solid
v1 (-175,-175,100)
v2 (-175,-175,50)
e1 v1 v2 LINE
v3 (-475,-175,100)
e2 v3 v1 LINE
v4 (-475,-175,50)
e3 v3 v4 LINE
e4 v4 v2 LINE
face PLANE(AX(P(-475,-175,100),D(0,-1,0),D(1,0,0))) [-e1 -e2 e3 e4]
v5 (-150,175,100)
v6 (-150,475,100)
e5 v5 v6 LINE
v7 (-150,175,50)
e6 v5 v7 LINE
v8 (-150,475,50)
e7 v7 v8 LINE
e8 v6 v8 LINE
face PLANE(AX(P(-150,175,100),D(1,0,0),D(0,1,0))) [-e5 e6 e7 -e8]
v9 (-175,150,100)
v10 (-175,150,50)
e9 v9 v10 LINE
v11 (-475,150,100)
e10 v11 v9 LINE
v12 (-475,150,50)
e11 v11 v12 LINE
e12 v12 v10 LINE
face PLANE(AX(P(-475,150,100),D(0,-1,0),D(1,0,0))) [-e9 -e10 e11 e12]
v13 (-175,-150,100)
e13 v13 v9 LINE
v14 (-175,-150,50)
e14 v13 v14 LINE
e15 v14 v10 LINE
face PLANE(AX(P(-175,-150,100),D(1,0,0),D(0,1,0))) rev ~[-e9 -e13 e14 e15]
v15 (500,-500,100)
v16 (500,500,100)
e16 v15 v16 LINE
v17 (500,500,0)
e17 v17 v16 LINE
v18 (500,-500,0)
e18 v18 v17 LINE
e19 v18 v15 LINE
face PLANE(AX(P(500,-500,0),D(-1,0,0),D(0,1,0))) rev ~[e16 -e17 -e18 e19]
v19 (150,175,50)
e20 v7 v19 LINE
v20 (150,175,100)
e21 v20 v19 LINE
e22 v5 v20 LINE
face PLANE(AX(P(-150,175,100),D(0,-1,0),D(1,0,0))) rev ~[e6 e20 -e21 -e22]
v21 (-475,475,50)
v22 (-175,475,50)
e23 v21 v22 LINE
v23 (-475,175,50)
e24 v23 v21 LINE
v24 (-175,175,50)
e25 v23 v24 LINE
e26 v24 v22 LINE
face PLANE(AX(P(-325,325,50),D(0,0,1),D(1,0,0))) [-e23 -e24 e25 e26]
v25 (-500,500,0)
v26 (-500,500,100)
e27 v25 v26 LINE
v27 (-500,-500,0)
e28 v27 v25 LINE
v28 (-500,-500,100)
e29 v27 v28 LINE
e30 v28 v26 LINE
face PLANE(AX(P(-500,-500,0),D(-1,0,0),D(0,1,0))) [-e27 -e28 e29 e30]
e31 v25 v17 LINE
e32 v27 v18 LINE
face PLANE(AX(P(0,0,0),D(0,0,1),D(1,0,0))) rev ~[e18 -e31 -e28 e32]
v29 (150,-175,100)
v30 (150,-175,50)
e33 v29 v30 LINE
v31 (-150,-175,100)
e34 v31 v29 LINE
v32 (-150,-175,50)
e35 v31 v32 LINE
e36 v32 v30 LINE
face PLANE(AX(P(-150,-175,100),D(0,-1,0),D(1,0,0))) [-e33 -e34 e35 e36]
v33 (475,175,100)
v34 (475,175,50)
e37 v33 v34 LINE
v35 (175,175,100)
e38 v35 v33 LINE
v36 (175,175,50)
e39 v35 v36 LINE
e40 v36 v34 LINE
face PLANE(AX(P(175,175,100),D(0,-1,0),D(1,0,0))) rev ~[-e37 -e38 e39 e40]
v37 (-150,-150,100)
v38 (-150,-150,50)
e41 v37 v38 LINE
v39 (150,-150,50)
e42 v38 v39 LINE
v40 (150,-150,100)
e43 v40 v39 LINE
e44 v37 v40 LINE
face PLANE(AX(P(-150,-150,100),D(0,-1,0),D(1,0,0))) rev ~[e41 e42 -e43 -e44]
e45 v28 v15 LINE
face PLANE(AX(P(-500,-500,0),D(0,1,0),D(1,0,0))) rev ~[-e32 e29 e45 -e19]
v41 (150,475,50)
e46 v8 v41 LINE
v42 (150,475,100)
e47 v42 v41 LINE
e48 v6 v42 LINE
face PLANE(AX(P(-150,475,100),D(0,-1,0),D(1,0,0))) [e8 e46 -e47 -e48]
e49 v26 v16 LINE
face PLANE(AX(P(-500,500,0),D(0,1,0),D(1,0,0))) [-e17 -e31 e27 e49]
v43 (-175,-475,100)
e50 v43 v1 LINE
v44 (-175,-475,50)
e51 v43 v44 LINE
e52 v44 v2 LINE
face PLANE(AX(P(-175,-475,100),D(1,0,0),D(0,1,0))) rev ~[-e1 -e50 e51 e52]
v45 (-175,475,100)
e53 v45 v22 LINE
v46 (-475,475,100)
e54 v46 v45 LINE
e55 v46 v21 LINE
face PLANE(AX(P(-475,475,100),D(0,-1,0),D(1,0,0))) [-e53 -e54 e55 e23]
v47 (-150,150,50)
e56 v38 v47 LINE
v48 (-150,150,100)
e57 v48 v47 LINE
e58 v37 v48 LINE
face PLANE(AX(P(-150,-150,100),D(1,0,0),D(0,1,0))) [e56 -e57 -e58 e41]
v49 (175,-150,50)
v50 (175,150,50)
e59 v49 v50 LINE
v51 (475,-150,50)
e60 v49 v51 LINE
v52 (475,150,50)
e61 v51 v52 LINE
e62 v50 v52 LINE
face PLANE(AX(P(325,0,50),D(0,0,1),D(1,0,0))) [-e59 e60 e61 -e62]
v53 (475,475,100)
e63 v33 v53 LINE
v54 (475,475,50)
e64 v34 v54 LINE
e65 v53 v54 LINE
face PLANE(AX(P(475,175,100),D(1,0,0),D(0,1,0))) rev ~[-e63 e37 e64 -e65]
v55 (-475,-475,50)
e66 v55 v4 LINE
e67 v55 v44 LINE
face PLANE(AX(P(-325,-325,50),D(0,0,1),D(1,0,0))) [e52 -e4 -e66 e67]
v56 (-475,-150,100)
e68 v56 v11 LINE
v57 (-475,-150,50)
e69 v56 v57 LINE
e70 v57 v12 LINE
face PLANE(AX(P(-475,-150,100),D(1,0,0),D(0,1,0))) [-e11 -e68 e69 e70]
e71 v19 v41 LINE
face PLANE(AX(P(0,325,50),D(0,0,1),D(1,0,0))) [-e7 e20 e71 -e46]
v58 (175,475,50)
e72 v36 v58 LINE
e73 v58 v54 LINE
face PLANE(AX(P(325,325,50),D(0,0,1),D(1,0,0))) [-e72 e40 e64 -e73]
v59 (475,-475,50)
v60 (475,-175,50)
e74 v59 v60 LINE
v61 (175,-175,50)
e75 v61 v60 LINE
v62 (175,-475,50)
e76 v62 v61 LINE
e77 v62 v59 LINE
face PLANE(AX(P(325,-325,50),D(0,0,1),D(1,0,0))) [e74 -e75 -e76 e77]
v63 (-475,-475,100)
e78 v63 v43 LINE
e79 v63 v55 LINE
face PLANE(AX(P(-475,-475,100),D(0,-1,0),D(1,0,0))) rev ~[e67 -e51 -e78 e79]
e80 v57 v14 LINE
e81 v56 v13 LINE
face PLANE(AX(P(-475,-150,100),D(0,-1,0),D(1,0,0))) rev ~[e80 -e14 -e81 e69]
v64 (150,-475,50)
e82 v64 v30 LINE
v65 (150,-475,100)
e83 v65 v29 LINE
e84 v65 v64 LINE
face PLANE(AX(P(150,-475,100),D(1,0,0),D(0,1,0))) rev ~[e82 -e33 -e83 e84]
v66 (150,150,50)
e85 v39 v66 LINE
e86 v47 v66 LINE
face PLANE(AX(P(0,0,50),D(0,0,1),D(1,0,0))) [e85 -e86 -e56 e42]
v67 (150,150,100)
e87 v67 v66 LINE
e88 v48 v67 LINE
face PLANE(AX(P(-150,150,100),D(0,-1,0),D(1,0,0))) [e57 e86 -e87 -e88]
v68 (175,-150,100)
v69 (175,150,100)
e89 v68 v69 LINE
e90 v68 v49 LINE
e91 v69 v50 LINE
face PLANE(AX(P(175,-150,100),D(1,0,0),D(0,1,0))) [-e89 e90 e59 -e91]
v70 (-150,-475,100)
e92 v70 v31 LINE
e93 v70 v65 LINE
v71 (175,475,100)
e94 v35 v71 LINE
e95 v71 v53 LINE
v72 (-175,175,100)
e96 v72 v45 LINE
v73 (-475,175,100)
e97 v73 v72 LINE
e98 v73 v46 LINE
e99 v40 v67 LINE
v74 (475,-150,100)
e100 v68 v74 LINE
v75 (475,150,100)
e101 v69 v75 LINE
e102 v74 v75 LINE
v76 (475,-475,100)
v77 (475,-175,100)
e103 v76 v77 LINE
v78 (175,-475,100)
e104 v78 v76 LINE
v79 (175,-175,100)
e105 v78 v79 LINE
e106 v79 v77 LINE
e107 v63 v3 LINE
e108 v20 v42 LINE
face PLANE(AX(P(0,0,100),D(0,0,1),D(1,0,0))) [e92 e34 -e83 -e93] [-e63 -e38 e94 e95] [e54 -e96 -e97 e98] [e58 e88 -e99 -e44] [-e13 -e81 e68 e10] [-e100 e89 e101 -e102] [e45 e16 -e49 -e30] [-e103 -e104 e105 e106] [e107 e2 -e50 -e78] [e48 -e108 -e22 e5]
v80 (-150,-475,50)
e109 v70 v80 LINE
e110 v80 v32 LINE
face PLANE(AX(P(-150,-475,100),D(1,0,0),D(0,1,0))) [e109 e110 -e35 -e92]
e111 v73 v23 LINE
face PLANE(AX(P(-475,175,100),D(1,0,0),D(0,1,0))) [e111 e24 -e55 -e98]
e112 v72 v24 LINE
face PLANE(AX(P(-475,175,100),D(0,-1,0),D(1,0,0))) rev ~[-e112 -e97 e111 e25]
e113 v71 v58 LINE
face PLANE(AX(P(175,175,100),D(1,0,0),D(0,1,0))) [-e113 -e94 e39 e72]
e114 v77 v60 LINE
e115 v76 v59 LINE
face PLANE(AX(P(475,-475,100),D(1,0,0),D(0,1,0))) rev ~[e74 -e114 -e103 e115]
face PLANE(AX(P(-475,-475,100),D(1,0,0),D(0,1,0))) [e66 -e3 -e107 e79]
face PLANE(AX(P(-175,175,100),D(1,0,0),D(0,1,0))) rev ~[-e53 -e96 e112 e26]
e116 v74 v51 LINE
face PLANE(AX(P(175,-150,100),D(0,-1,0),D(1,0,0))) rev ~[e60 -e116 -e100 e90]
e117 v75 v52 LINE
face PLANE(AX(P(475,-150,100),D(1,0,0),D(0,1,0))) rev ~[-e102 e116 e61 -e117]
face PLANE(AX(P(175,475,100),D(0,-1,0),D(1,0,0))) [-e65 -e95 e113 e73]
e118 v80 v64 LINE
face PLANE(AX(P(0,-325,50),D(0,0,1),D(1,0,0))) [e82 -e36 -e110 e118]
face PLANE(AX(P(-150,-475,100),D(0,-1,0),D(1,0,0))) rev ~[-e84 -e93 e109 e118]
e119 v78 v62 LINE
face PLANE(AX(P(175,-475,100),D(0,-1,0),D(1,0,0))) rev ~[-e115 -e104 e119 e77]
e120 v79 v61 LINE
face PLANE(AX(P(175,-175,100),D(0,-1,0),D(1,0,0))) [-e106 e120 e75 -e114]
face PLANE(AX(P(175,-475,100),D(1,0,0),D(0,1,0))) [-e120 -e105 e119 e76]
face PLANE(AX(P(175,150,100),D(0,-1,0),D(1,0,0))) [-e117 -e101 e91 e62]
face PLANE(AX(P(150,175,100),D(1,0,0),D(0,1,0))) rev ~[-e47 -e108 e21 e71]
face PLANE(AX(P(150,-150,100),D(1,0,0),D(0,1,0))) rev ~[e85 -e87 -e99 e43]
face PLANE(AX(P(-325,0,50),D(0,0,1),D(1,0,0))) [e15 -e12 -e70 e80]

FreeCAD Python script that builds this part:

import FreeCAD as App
import Part
import Sketcher

V = App.Vector
Q = App.Units.Quantity

doc = App.newDocument("Part")
body = doc.addObject("PartDesign::Body", "Body")

# Sketch on XY plane
sketch1 = body.newObject("Sketcher::SketchObject", "Sketch")
sketch1.AttachmentSupport = (doc.getObject("XY_Plane"), [""])
sketch1.MapMode = "FlatFace"
sketch1.addGeometry(Part.LineSegment(V(-500, 500, 0), V(-500, -500, 0)), False)
sketch1.addGeometry(Part.LineSegment(V(-500, -500, 0), V(500, -500, 0)), False)
sketch1.addGeometry(Part.LineSegment(V(500, -500, 0), V(500, 500, 0)), False)
sketch1.addGeometry(Part.LineSegment(V(500, 500, 0), V(-500, 500, 0)), False)
sketch1.addConstraint(Sketcher.Constraint("Coincident", 0, 2, 1, 1))
sketch1.addConstraint(Sketcher.Constraint("Coincident", 1, 2, 2, 1))
sketch1.addConstraint(Sketcher.Constraint("Coincident", 2, 2, 3, 1))
sketch1.addConstraint(Sketcher.Constraint("Coincident", 3, 2, 0, 1))
sketch1.addConstraint(Sketcher.Constraint("Vertical", 0))
sketch1.addConstraint(Sketcher.Constraint("Horizontal", 1))
sketch1.addConstraint(Sketcher.Constraint("Vertical", 2))
sketch1.addConstraint(Sketcher.Constraint("Horizontal", 3))
sketch1.addConstraint(Sketcher.Constraint("Symmetric", 0, 2, 2, 2, -1, 1))
sketch1.addConstraint(Sketcher.Constraint("Equal", 3, 0))
sketch1.addConstraint(Sketcher.Constraint("DistanceX", 1, 1, 1, 2, Q("1000 mm")))
pad1 = body.newObject("PartDesign::Pad", "Pad")
pad1.Profile = sketch1
pad1.Length = 100

# Sketch on XY plane
sketch2 = body.newObject("Sketcher::SketchObject", "Sketch001")
sketch2.AttachmentSupport = (doc.getObject("XY_Plane"), [""])
sketch2.MapMode = "FlatFace"
sketch2.AttachmentOffset = App.Placement(V(0, 0, 100), App.Rotation())
sketch2.addGeometry(Part.LineSegment(V(-475, 475, 0), V(-475, 175, 0)), False)
sketch2.addGeometry(Part.LineSegment(V(-475, 175, 0), V(-175, 175, 0)), False)
sketch2.addGeometry(Part.LineSegment(V(-175, 175, 0), V(-175, 475, 0)), False)
sketch2.addGeometry(Part.LineSegment(V(-175, 475, 0), V(-475, 475, 0)), False)
sketch2.addGeometry(Part.LineSegment(V(-150, 475, 0), V(-150, 175, 0)), False)
sketch2.addGeometry(Part.LineSegment(V(-150, 175, 0), V(150, 175, 0)), False)
sketch2.addGeometry(Part.LineSegment(V(150, 175, 0), V(150, 475, 0)), False)
sketch2.addGeometry(Part.LineSegment(V(150, 475, 0), V(-150, 475, 0)), False)
sketch2.addGeometry(Part.LineSegment(V(175, 475, 0), V(175, 175, 0)), False)
sketch2.addGeometry(Part.LineSegment(V(175, 175, 0), V(475, 175, 0)), False)
sketch2.addGeometry(Part.LineSegment(V(475, 175, 0), V(475, 475, 0)), False)
sketch2.addGeometry(Part.LineSegment(V(475, 475, 0), V(175, 475, 0)), False)
sketch2.addGeometry(Part.LineSegment(V(175, 150, 0), V(175, -150, 0)), False)
sketch2.addGeometry(Part.LineSegment(V(175, -150, 0), V(475, -150, 0)), False)
sketch2.addGeometry(Part.LineSegment(V(475, -150, 0), V(475, 150, 0)), False)
sketch2.addGeometry(Part.LineSegment(V(475, 150, 0), V(175, 150, 0)), False)
sketch2.addGeometry(Part.LineSegment(V(-150, 150, 0), V(-150, -150, 0)), False)
sketch2.addGeometry(Part.LineSegment(V(-150, -150, 0), V(150, -150, 0)), False)
sketch2.addGeometry(Part.LineSegment(V(150, -150, 0), V(150, 150, 0)), False)
sketch2.addGeometry(Part.LineSegment(V(150, 150, 0), V(-150, 150, 0)), False)
sketch2.addGeometry(Part.LineSegment(V(-475, 150, 0), V(-475, -150, 0)), False)
sketch2.addGeometry(Part.LineSegment(V(-475, -150, 0), V(-175, -150, 0)), False)
sketch2.addGeometry(Part.LineSegment(V(-175, -150, 0), V(-175, 150, 0)), False)
sketch2.addGeometry(Part.LineSegment(V(-175, 150, 0), V(-475, 150, 0)), False)
sketch2.addGeometry(Part.LineSegment(V(-475, -175, 0), V(-475, -475, 0)), False)
sketch2.addGeometry(Part.LineSegment(V(-475, -475, 0), V(-175, -475, 0)), False)
sketch2.addGeometry(Part.LineSegment(V(-175, -475, 0), V(-175, -175, 0)), False)
sketch2.addGeometry(Part.LineSegment(V(-175, -175, 0), V(-475, -175, 0)), False)
sketch2.addGeometry(Part.LineSegment(V(-150, -175, 0), V(-150, -475, 0)), False)
sketch2.addGeometry(Part.LineSegment(V(-150, -475, 0), V(150, -475, 0)), False)
sketch2.addGeometry(Part.LineSegment(V(150, -475, 0), V(150, -175, 0)), False)
sketch2.addGeometry(Part.LineSegment(V(150, -175, 0), V(-150, -175, 0)), False)
sketch2.addGeometry(Part.LineSegment(V(175, -175, 0), V(175, -475, 0)), False)
sketch2.addGeometry(Part.LineSegment(V(175, -475, 0), V(475, -475, 0)), False)
sketch2.addGeometry(Part.LineSegment(V(475, -475, 0), V(475, -175, 0)), False)
sketch2.addGeometry(Part.LineSegment(V(475, -175, 0), V(175, -175, 0)), False)
sketch2.addConstraint(Sketcher.Constraint("Coincident", 0, 2, 1, 1))
sketch2.addConstraint(Sketcher.Constraint("Coincident", 1, 2, 2, 1))
sketch2.addConstraint(Sketcher.Constraint("Coincident", 2, 2, 3, 1))
sketch2.addConstraint(Sketcher.Constraint("Coincident", 3, 2, 0, 1))
sketch2.addConstraint(Sketcher.Constraint("Coincident", 4, 2, 5, 1))
sketch2.addConstraint(Sketcher.Constraint("Coincident", 5, 2, 6, 1))
sketch2.addConstraint(Sketcher.Constraint("Coincident", 6, 2, 7, 1))
sketch2.addConstraint(Sketcher.Constraint("Coincident", 7, 2, 4, 1))
sketch2.addConstraint(Sketcher.Constraint("Coincident", 8, 2, 9, 1))
sketch2.addConstraint(Sketcher.Constraint("Coincident", 9, 2, 10, 1))
sketch2.addConstraint(Sketcher.Constraint("Coincident", 10, 2, 11, 1))
sketch2.addConstraint(Sketcher.Constraint("Coincident", 11, 2, 8, 1))
sketch2.addConstraint(Sketcher.Constraint("Coincident", 12, 2, 13, 1))
sketch2.addConstraint(Sketcher.Constraint("Coincident", 13, 2, 14, 1))
sketch2.addConstraint(Sketcher.Constraint("Coincident", 14, 2, 15, 1))
sketch2.addConstraint(Sketcher.Constraint("Coincident", 15, 2, 12, 1))
sketch2.addConstraint(Sketcher.Constraint("Coincident", 16, 2, 17, 1))
sketch2.addConstraint(Sketcher.Constraint("Coincident", 17, 2, 18, 1))
sketch2.addConstraint(Sketcher.Constraint("Coincident", 18, 2, 19, 1))
sketch2.addConstraint(Sketcher.Constraint("Coincident", 19, 2, 16, 1))
sketch2.addConstraint(Sketcher.Constraint("Coincident", 20, 2, 21, 1))
sketch2.addConstraint(Sketcher.Constraint("Coincident", 21, 2, 22, 1))
sketch2.addConstraint(Sketcher.Constraint("Coincident", 22, 2, 23, 1))
sketch2.addConstraint(Sketcher.Constraint("Coincident", 23, 2, 20, 1))
sketch2.addConstraint(Sketcher.Constraint("Coincident", 24, 2, 25, 1))
sketch2.addConstraint(Sketcher.Constraint("Coincident", 25, 2, 26, 1))
sketch2.addConstraint(Sketcher.Constraint("Coincident", 26, 2, 27, 1))
sketch2.addConstraint(Sketcher.Constraint("Coincident", 27, 2, 24, 1))
sketch2.addConstraint(Sketcher.Constraint("Coincident", 28, 2, 29, 1))
sketch2.addConstraint(Sketcher.Constraint("Coincident", 29, 2, 30, 1))
sketch2.addConstraint(Sketcher.Constraint("Coincident", 30, 2, 31, 1))
sketch2.addConstraint(Sketcher.Constraint("Coincident", 31, 2, 28, 1))
sketch2.addConstraint(Sketcher.Constraint("Coincident", 32, 2, 33, 1))
sketch2.addConstraint(Sketcher.Constraint("Coincident", 33, 2, 34, 1))
sketch2.addConstraint(Sketcher.Constraint("Coincident", 34, 2, 35, 1))
sketch2.addConstraint(Sketcher.Constraint("Coincident", 35, 2, 32, 1))
sketch2.addConstraint(Sketcher.Constraint("Vertical", 0))
sketch2.addConstraint(Sketcher.Constraint("Horizontal", 1))
sketch2.addConstraint(Sketcher.Constraint("Vertical", 2))
sketch2.addConstraint(Sketcher.Constraint("Horizontal", 3))
sketch2.addConstraint(Sketcher.Constraint("Vertical", 4))
sketch2.addConstraint(Sketcher.Constraint("Horizontal", 5))
sketch2.addConstraint(Sketcher.Constraint("Vertical", 6))
sketch2.addConstraint(Sketcher.Constraint("Horizontal", 7))
sketch2.addConstraint(Sketcher.Constraint("Vertical", 8))
sketch2.addConstraint(Sketcher.Constraint("Horizontal", 9))
sketch2.addConstraint(Sketcher.Constraint("Vertical", 10))
sketch2.addConstraint(Sketcher.Constraint("Horizontal", 11))
sketch2.addConstraint(Sketcher.Constraint("Vertical", 12))
sketch2.addConstraint(Sketcher.Constraint("Horizontal", 13))
sketch2.addConstraint(Sketcher.Constraint("Vertical", 14))
sketch2.addConstraint(Sketcher.Constraint("Horizontal", 15))
sketch2.addConstraint(Sketcher.Constraint("Vertical", 16))
sketch2.addConstraint(Sketcher.Constraint("Horizontal", 17))
sketch2.addConstraint(Sketcher.Constraint("Vertical", 18))
sketch2.addConstraint(Sketcher.Constraint("Horizontal", 19))
sketch2.addConstraint(Sketcher.Constraint("Vertical", 20))
sketch2.addConstraint(Sketcher.Constraint("Horizontal", 21))
sketch2.addConstraint(Sketcher.Constraint("Vertical", 22))
sketch2.addConstraint(Sketcher.Constraint("Horizontal", 23))
sketch2.addConstraint(Sketcher.Constraint("Vertical", 24))
sketch2.addConstraint(Sketcher.Constraint("Horizontal", 25))
sketch2.addConstraint(Sketcher.Constraint("Vertical", 26))
sketch2.addConstraint(Sketcher.Constraint("Horizontal", 27))
sketch2.addConstraint(Sketcher.Constraint("Vertical", 28))
sketch2.addConstraint(Sketcher.Constraint("Horizontal", 29))
sketch2.addConstraint(Sketcher.Constraint("Vertical", 30))
sketch2.addConstraint(Sketcher.Constraint("Horizontal", 31))
sketch2.addConstraint(Sketcher.Constraint("Vertical", 32))
sketch2.addConstraint(Sketcher.Constraint("Horizontal", 33))
sketch2.addConstraint(Sketcher.Constraint("Vertical", 34))
sketch2.addConstraint(Sketcher.Constraint("Horizontal", 35))
sketch2.addConstraint(Sketcher.Constraint("Symmetric", 16, 2, 18, 2, -1, 1))
sketch2.addConstraint(Sketcher.Constraint("Symmetric", 14, 2, 20, 2, -1, 1))
sketch2.addConstraint(Sketcher.Constraint("Symmetric", 12, 2, 22, 2, -1, 1))
sketch2.addConstraint(Sketcher.Constraint("Symmetric", 10, 2, 24, 2, -1, 1))
sketch2.addConstraint(Sketcher.Constraint("Symmetric", 8, 2, 26, 2, -1, 1))
sketch2.addConstraint(Sketcher.Constraint("Symmetric", 6, 2, 28, 2, -1, 1))
sketch2.addConstraint(Sketcher.Constraint("Symmetric", 4, 2, 30, 2, -1, 1))
sketch2.addConstraint(Sketcher.Constraint("Symmetric", 2, 2, 32, 2, -1, 1))
sketch2.addConstraint(Sketcher.Constraint("Symmetric", 0, 2, 34, 2, -1, 1))
sketch2.addConstraint(Sketcher.Constraint("Symmetric", 1, 2, 8, 2, -2))
sketch2.addConstraint(Sketcher.Constraint("Symmetric", 3, 2, 10, 2, -2))
sketch2.addConstraint(Sketcher.Constraint("Horizontal", 1, 2, 4, 2))
sketch2.addConstraint(Sketcher.Constraint("Horizontal", 3, 2, 6, 2))
sketch2.addConstraint(Sketcher.Constraint("Horizontal", 13, 2, 16, 2))
sketch2.addConstraint(Sketcher.Constraint("Horizontal", 15, 2, 18, 2))
sketch2.addConstraint(Sketcher.Constraint("Vertical", 11, 2, 12, 2))
sketch2.addConstraint(Sketcher.Constraint("Vertical", 10, 2, 13, 2))
sketch2.addConstraint(Sketcher.Constraint("Vertical", 7, 2, 16, 2))
sketch2.addConstraint(Sketcher.Constraint("Vertical", 6, 2, 17, 2))
sketch2.addConstraint(Sketcher.Constraint("Equal", 3, 5))
sketch2.addConstraint(Sketcher.Constraint("Equal", 35, 0))
sketch2.addConstraint(Sketcher.Constraint("Equal", 10, 12))
sketch2.addConstraint(Sketcher.Constraint("DistanceX", 1, 1, 1, 2, Q("300 mm")))
sketch2.addConstraint(Sketcher.Constraint("DistanceX", 0, 2, -1, 1, Q("475 mm")))
sketch2.addConstraint(Sketcher.Constraint("DistanceY", -1, 1, 0, 2, Q("175 mm")))
pocket1 = body.newObject("PartDesign::Pocket", "Pocket")
pocket1.Profile = sketch2
pocket1.Length = 50

doc.recompute()
